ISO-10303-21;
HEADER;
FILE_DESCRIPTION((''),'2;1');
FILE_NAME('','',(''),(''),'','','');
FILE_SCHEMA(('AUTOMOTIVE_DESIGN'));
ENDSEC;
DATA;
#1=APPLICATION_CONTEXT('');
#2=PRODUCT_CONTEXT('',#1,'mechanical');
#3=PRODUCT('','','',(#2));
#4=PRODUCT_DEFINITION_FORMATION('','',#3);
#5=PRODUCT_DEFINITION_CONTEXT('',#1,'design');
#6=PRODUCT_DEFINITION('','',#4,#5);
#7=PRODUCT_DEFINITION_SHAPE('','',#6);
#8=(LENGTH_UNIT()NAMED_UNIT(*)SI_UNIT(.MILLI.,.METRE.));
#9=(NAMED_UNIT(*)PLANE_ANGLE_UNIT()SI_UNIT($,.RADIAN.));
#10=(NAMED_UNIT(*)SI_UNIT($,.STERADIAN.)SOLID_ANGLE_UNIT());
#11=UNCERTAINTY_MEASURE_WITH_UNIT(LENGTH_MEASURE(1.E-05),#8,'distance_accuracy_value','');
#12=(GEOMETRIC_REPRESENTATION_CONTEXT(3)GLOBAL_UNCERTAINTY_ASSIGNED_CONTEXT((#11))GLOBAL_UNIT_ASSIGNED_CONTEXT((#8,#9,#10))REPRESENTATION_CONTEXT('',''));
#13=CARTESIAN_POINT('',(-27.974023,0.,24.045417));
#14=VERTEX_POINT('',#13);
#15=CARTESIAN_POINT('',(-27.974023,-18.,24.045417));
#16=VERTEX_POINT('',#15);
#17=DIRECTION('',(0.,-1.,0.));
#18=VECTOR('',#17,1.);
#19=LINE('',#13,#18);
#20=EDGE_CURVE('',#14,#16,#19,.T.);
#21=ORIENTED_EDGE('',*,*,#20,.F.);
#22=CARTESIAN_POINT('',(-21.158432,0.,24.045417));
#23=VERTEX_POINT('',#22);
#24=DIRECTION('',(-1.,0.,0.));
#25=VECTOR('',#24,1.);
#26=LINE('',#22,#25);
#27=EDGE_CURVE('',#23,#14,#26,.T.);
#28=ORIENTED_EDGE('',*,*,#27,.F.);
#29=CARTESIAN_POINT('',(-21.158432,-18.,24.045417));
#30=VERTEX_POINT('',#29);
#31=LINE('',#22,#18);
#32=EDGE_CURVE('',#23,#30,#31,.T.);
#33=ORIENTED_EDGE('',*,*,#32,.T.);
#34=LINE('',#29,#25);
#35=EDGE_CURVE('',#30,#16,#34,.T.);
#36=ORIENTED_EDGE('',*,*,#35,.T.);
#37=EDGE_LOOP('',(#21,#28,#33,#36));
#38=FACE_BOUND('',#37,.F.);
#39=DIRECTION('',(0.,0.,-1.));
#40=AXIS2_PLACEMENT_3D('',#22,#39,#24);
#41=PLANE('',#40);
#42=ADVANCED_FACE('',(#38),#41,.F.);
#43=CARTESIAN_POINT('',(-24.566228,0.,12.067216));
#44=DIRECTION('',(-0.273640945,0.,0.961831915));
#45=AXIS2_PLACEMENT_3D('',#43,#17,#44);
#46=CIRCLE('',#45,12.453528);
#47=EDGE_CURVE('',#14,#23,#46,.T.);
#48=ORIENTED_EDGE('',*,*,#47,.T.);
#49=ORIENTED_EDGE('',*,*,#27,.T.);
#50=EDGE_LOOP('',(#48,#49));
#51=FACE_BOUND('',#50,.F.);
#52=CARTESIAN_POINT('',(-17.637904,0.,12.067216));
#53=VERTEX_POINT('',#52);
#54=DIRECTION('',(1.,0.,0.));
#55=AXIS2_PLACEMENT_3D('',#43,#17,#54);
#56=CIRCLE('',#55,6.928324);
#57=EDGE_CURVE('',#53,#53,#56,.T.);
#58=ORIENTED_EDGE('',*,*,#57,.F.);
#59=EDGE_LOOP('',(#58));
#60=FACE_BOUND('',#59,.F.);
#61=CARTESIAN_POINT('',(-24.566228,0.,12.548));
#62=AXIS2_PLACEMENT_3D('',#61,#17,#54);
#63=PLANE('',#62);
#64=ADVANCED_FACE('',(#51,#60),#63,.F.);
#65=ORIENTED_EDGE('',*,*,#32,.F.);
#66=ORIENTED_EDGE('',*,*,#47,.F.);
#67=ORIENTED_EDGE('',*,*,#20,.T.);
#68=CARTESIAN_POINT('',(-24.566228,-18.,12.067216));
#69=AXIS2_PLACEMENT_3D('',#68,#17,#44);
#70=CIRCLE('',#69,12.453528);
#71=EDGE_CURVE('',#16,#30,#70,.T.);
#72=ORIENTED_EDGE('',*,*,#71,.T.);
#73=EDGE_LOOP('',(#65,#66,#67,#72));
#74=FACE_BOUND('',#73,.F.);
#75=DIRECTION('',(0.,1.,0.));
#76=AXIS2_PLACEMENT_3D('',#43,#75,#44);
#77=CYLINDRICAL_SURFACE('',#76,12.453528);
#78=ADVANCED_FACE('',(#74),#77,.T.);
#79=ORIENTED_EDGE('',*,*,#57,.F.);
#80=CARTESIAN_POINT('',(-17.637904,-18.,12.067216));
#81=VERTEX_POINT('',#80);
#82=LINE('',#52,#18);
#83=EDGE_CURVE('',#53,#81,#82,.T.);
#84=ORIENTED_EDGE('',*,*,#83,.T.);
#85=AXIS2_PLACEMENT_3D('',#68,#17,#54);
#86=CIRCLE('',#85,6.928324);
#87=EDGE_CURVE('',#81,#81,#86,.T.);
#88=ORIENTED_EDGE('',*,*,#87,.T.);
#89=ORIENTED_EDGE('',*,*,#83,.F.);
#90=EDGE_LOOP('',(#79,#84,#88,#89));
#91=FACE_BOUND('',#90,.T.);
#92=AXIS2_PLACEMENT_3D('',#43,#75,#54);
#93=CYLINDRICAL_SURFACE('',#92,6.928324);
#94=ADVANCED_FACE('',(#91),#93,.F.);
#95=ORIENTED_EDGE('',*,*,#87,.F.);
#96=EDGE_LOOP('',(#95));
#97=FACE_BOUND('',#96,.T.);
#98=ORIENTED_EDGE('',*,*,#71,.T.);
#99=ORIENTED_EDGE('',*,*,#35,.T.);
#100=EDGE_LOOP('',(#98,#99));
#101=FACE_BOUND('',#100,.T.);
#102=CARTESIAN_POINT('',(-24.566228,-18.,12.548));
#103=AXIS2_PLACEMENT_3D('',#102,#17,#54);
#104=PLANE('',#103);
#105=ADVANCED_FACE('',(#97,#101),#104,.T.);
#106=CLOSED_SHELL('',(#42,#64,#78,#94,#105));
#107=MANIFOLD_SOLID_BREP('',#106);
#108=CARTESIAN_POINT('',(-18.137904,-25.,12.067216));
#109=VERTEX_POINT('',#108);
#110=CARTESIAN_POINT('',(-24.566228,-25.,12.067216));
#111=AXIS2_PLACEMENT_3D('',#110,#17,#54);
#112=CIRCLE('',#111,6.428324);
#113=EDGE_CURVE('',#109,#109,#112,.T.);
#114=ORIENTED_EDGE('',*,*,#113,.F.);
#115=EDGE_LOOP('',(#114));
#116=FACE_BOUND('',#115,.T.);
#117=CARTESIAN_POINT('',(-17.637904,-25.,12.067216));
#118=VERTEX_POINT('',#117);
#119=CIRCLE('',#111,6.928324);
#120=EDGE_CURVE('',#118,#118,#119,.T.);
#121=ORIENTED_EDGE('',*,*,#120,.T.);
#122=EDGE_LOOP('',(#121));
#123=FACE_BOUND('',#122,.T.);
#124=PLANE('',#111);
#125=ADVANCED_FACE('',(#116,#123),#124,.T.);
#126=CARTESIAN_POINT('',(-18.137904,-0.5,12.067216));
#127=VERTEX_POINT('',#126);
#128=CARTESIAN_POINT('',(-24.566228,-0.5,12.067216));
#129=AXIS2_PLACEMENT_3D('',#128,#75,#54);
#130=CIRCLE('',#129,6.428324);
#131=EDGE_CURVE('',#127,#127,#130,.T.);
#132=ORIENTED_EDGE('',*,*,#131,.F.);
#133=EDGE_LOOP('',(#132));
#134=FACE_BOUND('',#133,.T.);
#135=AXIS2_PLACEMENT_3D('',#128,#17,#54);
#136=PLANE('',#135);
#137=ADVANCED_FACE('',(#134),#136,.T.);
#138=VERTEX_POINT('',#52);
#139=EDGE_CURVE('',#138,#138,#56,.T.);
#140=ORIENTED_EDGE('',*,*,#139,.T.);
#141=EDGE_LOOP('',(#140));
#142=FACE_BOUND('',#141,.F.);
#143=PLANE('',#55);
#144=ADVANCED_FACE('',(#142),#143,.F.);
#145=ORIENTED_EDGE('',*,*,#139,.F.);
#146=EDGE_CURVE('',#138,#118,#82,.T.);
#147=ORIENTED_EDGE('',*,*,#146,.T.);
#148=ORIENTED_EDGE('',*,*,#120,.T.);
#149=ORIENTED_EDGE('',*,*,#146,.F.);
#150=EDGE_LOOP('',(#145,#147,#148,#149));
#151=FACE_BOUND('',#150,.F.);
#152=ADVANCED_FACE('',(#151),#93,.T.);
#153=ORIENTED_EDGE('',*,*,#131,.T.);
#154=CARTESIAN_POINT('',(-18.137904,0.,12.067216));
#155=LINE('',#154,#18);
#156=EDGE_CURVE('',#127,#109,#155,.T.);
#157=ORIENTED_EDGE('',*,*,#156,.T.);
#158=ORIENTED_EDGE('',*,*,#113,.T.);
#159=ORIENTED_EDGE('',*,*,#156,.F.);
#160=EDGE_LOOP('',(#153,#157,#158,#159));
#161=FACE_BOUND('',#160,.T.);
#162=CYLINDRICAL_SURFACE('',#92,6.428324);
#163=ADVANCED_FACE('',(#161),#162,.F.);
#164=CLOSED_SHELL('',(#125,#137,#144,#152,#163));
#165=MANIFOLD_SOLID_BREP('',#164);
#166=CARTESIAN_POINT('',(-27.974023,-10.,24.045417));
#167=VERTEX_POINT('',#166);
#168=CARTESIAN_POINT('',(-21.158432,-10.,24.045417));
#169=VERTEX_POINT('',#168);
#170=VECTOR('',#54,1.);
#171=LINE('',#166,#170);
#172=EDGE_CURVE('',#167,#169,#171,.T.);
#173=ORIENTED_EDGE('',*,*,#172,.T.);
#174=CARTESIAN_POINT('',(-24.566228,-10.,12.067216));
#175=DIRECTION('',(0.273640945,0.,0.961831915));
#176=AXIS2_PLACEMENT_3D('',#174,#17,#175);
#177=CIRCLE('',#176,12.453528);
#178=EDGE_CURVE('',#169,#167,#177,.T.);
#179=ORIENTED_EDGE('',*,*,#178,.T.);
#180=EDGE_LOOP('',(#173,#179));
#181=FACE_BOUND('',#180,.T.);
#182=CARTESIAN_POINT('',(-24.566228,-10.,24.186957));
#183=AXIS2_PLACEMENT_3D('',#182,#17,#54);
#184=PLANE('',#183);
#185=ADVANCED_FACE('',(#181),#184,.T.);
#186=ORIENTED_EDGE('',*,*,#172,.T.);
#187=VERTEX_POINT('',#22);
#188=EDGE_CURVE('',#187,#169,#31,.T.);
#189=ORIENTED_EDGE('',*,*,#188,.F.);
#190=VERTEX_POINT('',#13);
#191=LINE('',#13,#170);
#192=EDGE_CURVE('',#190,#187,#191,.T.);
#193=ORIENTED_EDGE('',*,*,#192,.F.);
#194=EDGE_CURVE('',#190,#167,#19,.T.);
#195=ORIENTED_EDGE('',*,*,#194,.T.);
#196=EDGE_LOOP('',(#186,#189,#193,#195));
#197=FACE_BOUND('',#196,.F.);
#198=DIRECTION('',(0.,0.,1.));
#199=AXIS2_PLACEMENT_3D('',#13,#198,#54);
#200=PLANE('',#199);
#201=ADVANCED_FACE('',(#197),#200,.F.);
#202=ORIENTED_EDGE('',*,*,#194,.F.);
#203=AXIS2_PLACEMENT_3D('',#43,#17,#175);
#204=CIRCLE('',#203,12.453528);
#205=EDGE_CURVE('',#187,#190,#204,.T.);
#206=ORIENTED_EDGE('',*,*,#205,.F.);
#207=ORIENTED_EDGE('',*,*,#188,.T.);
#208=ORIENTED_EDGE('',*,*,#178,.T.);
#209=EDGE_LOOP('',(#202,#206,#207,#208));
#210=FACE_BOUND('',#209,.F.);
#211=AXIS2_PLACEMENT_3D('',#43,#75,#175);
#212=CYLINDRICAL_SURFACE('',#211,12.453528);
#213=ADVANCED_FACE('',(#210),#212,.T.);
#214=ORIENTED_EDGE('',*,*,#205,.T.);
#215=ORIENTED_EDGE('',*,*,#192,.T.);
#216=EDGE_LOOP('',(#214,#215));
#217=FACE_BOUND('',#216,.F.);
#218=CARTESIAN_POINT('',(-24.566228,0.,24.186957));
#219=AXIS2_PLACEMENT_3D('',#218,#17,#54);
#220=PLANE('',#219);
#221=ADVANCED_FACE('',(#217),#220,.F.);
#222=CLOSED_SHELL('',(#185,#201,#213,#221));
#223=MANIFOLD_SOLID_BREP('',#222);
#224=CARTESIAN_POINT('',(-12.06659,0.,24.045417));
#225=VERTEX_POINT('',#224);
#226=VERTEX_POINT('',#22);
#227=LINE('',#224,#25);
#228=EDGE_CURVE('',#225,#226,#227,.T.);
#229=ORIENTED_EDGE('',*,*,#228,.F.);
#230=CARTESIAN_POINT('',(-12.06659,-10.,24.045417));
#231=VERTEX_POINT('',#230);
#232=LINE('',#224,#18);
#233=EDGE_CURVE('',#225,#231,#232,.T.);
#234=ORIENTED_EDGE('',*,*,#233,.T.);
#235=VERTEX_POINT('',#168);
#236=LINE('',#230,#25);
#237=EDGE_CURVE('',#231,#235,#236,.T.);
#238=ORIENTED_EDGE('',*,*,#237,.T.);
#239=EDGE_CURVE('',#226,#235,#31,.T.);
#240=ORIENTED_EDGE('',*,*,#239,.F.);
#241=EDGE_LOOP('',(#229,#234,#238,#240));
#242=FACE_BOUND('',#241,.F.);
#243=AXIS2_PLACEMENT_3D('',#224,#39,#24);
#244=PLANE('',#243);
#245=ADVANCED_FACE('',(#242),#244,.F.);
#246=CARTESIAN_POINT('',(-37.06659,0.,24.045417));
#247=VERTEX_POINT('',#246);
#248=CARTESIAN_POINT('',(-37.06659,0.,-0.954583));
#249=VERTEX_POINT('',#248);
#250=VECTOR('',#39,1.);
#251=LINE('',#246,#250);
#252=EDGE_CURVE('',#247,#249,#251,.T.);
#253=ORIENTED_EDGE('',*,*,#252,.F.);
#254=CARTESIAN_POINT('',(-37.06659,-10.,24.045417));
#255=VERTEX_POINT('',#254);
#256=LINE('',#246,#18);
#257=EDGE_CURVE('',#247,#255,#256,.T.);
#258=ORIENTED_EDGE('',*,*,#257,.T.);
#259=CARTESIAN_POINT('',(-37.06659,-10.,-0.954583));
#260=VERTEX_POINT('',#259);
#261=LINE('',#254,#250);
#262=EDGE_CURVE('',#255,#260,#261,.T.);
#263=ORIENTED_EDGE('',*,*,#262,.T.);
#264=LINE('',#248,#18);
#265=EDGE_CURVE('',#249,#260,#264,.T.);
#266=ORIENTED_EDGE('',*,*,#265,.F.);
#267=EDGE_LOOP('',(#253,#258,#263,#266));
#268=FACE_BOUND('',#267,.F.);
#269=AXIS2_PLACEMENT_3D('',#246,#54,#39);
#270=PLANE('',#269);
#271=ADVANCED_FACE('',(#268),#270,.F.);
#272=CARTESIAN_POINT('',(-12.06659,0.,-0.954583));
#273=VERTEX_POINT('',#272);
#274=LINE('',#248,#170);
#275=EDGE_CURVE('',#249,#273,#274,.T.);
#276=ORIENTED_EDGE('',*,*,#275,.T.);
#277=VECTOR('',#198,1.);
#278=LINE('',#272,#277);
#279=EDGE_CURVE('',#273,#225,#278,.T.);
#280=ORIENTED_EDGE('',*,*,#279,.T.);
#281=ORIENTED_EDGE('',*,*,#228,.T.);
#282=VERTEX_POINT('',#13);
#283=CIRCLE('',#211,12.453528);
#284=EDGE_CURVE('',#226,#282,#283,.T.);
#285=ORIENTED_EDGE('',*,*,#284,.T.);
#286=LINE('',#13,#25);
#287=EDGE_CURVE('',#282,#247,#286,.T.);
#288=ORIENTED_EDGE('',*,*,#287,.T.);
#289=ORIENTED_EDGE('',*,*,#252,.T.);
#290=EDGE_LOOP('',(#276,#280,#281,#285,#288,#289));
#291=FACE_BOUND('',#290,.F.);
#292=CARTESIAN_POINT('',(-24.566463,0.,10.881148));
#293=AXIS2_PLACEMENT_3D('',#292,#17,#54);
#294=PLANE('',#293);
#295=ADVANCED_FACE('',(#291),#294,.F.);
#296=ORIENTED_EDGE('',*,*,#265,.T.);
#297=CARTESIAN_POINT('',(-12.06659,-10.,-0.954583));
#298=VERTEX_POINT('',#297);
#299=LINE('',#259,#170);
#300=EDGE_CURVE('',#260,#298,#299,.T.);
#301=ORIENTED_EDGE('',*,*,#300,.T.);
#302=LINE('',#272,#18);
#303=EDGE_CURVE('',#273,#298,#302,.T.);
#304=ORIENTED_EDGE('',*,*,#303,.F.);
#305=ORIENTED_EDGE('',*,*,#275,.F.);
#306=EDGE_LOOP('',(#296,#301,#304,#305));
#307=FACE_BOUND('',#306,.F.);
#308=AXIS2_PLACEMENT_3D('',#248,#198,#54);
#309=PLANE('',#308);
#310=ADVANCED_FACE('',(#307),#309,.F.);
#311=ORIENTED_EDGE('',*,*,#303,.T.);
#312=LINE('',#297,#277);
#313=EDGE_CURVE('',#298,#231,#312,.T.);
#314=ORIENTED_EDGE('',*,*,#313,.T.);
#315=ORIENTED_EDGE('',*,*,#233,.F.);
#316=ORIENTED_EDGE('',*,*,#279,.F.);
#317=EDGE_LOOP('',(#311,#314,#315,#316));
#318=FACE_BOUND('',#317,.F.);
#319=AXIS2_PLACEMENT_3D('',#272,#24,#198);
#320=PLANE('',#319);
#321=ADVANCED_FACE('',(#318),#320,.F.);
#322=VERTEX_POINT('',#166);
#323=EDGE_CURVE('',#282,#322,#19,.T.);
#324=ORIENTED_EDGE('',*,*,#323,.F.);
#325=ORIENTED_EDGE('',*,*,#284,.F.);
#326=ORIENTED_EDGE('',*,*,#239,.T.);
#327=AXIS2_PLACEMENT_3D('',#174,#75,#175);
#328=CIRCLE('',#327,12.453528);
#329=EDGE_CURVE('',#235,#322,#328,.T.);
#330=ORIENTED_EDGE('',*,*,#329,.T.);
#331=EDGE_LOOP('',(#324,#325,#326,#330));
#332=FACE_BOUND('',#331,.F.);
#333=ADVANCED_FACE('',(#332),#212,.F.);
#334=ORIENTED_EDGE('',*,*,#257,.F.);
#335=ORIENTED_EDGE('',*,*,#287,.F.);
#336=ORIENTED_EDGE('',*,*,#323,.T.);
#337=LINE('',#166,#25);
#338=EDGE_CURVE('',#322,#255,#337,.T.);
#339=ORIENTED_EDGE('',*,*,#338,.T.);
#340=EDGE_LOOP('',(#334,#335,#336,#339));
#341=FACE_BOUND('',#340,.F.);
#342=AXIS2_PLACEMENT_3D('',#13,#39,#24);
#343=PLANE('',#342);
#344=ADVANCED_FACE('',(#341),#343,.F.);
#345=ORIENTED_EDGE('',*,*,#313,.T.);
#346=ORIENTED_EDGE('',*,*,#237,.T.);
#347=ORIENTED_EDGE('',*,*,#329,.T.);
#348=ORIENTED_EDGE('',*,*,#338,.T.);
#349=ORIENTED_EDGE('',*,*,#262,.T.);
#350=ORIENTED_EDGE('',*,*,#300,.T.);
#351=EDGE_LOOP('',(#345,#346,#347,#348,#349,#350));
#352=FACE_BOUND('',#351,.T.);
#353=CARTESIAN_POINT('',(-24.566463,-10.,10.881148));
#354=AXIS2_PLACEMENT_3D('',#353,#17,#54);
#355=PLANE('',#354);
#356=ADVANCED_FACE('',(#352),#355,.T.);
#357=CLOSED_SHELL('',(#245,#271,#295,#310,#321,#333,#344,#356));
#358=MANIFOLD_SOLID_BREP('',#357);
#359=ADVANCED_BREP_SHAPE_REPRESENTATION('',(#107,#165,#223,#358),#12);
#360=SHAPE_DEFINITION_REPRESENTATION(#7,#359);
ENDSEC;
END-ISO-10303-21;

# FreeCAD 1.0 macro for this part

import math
import FreeCAD as App
import Part
import Sketcher
from FreeCAD import Vector
Q = App.Units.Quantity


def faces_at(feature, points):
    """Names of the faces that lie closest to the given points."""
    faces = feature.Shape.Faces
    near = lambda p: min(range(len(faces)), key=lambda i: faces[i].distToShape(Part.Vertex(*p))[0])
    return sorted({f"Face{near(p) + 1}" for p in points})

doc = App.newDocument("Part")
body = doc.addObject("PartDesign::Body", "Body")

# Sketch on XZ plane
sketch1 = body.newObject("Sketcher::SketchObject", "Sketch")
sketch1.AttachmentSupport = (doc.getObject("XZ_Plane"), [""])
sketch1.MapMode = "FlatFace"
sketch1.addGeometry([
    Part.LineSegment(Vector(-37.06659, -0.954583, 0), Vector(-12.06659, -0.954583, 0)),  # 0
    Part.LineSegment(Vector(-12.06659, -0.954583, 0), Vector(-12.06659, 24.045417, 0)),  # 1
    Part.LineSegment(Vector(-12.06659, 24.045417, 0), Vector(-21.158432, 24.045417, 0)),  # 2
    Part.ArcOfCircle(Part.Circle(Vector(-24.566228, 12.067216, 0), Vector(0, 0, 1), 12.453528), math.radians(105.88104), math.radians(434.11896)),  # 3
    Part.LineSegment(Vector(-27.974023, 24.045417, 0), Vector(-37.06659, 24.045417, 0)),  # 4
    Part.LineSegment(Vector(-37.06659, 24.045417, 0), Vector(-37.06659, -0.954583, 0)),  # 5
], False)
sketch1.addConstraint([
    Sketcher.Constraint("Coincident", 0, 2, 1, 1),
    Sketcher.Constraint("Coincident", 1, 2, 2, 1),
    Sketcher.Constraint("Coincident", 2, 2, 3, 2),
    Sketcher.Constraint("Coincident", 3, 1, 4, 1),
    Sketcher.Constraint("Coincident", 4, 2, 5, 1),
    Sketcher.Constraint("Coincident", 5, 2, 0, 1),
    Sketcher.Constraint("Horizontal", 0),
    Sketcher.Constraint("Vertical", 1),
    Sketcher.Constraint("Horizontal", 2),
    Sketcher.Constraint("Horizontal", 4),
    Sketcher.Constraint("Vertical", 5),
    Sketcher.Constraint("Horizontal", 2, 2, 3, 1),
    Sketcher.Constraint("Equal", 0, 1),
    Sketcher.Constraint("DistanceX", 0, 1, 0, 2, Q("25 mm")),
    Sketcher.Constraint("Radius", 3, Q("12.453528 mm")),
    Sketcher.Constraint("DistanceY", 0, 2, 3, 3, Q("13.021799 mm")),
    Sketcher.Constraint("DistanceX", 2, 2, 2, 1, Q("9.091842 mm")),
    Sketcher.Constraint("DistanceX", 0, 2, -1, 1, Q("12.06659 mm")),
    Sketcher.Constraint("DistanceY", -1, 1, 3, 3, Q("12.067216 mm")),
])
pad1 = body.newObject("PartDesign::Pad", "Pad")
pad1.Profile = sketch1
pad1.Length = 10
body2 = doc.addObject("PartDesign::Body", "Body001")

# Sketch on XZ plane
sketch2 = body2.newObject("Sketcher::SketchObject", "Sketch001")
sketch2.AttachmentSupport = (doc.getObject("XZ_Plane001"), [""])
sketch2.MapMode = "FlatFace"
sketch2.addGeometry([
    Part.LineSegment(Vector(-27.974023, 24.045417, 0), Vector(-21.158432, 24.045417, 0)),
    Part.ArcOfCircle(Part.Circle(Vector(-24.566228, 12.067216, 0), Vector(0, 0, 1), 12.453528), math.radians(74.11896), math.radians(105.88104)),
], False)
sketch2.addConstraint([
    Sketcher.Constraint("Coincident", 0, 1, 1, 2),
    Sketcher.Constraint("Coincident", 1, 1, 0, 2),
    Sketcher.Constraint("Horizontal", 0),
    Sketcher.Constraint("Radius", 1, Q("12.453528 mm")),
    Sketcher.Constraint("DistanceX", 0, 1, 0, 2, Q("6.815591 mm")),
    Sketcher.Constraint("DistanceX", 1, 3, -1, 1, Q("24.566228 mm")),
    Sketcher.Constraint("DistanceY", -1, 1, 1, 3, Q("12.067216 mm")),
])
pad2 = body2.newObject("PartDesign::Pad", "Pad001")
pad2.Profile = sketch2
pad2.Length = 10
body3 = doc.addObject("PartDesign::Body", "Body002")

# Sketch on XZ plane
sketch3 = body3.newObject("Sketcher::SketchObject", "Sketch002")
sketch3.AttachmentSupport = (doc.getObject("XZ_Plane002"), [""])
sketch3.MapMode = "FlatFace"
sketch3.addGeometry(Part.Circle(Vector(-24.566228, 12.067216, 0), Vector(0, 0, 1), 6.928324), False)
sketch3.addConstraint([
    Sketcher.Constraint("Diameter", 0, Q("13.856648 mm")),
    Sketcher.Constraint("DistanceX", 0, 3, -1, 1, Q("24.566228 mm")),
    Sketcher.Constraint("DistanceY", -1, 1, 0, 3, Q("12.067216 mm")),
])
pad3 = body3.newObject("PartDesign::Pad", "Pad002")
pad3.Profile = sketch3
pad3.Length = 25
doc.recompute()

thickness = body3.newObject("PartDesign::Thickness", "Thickness")
thickness.Base = (pad3, faces_at(pad3, [(-24.566, -25, 12.067)]))
thickness.Value = 0.5
thickness.Reversed = True
thickness.Join = "Arc"
body4 = doc.addObject("PartDesign::Body", "Body003")

# Sketch on XZ plane
sketch4 = body4.newObject("Sketcher::SketchObject", "Sketch003")
sketch4.AttachmentSupport = (doc.getObject("XZ_Plane003"), [""])
sketch4.MapMode = "FlatFace"
sketch4.addGeometry([
    Part.LineSegment(Vector(-21.158432, 24.045417, 0), Vector(-27.974023, 24.045417, 0)),
    Part.ArcOfCircle(Part.Circle(Vector(-24.566228, 12.067216, 0), Vector(0, 0, 1), 12.453528), math.radians(105.88104), math.radians(434.11896)),
    Part.Circle(Vector(-24.566228, 12.067216, 0), Vector(0, 0, 1), 6.928324),
], False)
sketch4.addConstraint([
    Sketcher.Constraint("Coincident", 0, 1, 1, 2),
    Sketcher.Constraint("Coincident", 1, 1, 0, 2),
    Sketcher.Constraint("Horizontal", 0),
    Sketcher.Constraint("Coincident", 2, 3, 1, 3),
    Sketcher.Constraint("Radius", 1, Q("12.453528 mm")),
    Sketcher.Constraint("Diameter", 2, Q("13.856648 mm")),
    Sketcher.Constraint("DistanceX", 0, 2, 0, 1, Q("6.815591 mm")),
    Sketcher.Constraint("DistanceX", 1, 3, -1, 1, Q("24.566228 mm")),
    Sketcher.Constraint("DistanceY", -1, 1, 1, 3, Q("12.067216 mm")),
])
pad4 = body4.newObject("PartDesign::Pad", "Pad003")
pad4.Profile = sketch4
pad4.Length = 18

doc.recompute()
